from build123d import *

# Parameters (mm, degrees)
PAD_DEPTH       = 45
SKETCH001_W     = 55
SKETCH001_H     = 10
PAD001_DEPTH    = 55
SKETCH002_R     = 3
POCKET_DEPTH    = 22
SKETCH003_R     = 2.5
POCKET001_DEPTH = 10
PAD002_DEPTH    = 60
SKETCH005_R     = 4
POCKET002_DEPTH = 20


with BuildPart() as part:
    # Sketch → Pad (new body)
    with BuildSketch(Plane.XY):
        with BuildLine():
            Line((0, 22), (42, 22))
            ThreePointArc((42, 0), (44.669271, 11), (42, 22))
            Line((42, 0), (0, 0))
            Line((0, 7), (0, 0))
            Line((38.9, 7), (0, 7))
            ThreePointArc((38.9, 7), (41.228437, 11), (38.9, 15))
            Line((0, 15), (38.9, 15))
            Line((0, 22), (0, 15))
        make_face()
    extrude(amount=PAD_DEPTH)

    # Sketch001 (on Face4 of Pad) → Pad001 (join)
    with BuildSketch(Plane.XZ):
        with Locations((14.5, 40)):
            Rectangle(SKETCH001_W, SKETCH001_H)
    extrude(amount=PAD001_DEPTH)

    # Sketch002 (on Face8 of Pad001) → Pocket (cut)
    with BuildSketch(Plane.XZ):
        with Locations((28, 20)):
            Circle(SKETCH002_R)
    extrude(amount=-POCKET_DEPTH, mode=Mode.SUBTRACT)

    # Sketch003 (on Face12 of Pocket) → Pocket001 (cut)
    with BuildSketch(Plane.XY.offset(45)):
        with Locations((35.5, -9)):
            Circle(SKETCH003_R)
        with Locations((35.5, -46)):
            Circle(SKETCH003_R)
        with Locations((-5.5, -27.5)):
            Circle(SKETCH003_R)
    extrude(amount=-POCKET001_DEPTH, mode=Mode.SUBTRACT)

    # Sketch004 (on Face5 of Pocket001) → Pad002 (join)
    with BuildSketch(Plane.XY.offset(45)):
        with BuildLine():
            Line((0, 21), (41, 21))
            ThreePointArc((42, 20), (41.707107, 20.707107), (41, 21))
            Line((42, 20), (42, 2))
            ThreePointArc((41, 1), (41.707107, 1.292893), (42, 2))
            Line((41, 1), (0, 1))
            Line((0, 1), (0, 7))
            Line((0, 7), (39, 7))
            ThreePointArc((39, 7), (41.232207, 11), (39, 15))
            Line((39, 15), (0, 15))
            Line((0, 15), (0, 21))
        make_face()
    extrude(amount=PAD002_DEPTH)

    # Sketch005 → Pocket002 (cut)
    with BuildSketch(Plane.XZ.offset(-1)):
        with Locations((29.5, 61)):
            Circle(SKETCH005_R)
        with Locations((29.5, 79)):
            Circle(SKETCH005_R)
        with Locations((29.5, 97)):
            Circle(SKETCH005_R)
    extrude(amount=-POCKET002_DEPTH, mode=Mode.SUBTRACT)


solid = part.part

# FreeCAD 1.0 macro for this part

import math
import FreeCAD as App
import Part
import Sketcher
from FreeCAD import Vector

doc = App.newDocument("Part")
body = doc.addObject("PartDesign::Body", "Body")

# Sketch on XY plane
sketch1 = body.newObject("Sketcher::SketchObject", "Sketch")
sketch1.AttachmentSupport = (doc.getObject("XY_Plane"), [""])
sketch1.MapMode = "FlatFace"
sketch1.addGeometry([
    Part.LineSegment(Vector(42, 22, 0), Vector(0, 22, 0)),  # 0
    Part.LineSegment(Vector(0, 22, 0), Vector(0, 15, 0)),  # 1
    Part.LineSegment(Vector(0, 15, 0), Vector(38.9, 15, 0)),  # 2
    Part.ArcOfCircle(Part.Circle(Vector(36.628437, 11, 0), Vector(0, 0, 1), 4.6), math.radians(-60.408161), math.radians(60.408161)),  # 3
    Part.LineSegment(Vector(38.9, 7, 0), Vector(0, 7, 0)),  # 4
    Part.LineSegment(Vector(0, 7, 0), Vector(0, 0, 0)),  # 5
    Part.LineSegment(Vector(0, 0, 0), Vector(42, 0, 0)),  # 6
    Part.ArcOfCircle(Part.Circle(Vector(20.669271, 11, 0), Vector(0, 0, 1), 24), math.radians(-27.279613), math.radians(27.279613)),  # 7
], False)
sketch1.addConstraint([
    Sketcher.Constraint("Coincident", 0, 2, 1, 1),
    Sketcher.Constraint("Coincident", 1, 2, 2, 1),
    Sketcher.Constraint("Coincident", 2, 2, 3, 2),
    Sketcher.Constraint("Coincident", 3, 1, 4, 1),
    Sketcher.Constraint("Coincident", 4, 2, 5, 1),
    Sketcher.Constraint("Coincident", 5, 2, 6, 1),
    Sketcher.Constraint("Coincident", 6, 2, 7, 1),
    Sketcher.Constraint("Coincident", 7, 2, 0, 1),
    Sketcher.Constraint("Horizontal", 0),
    Sketcher.Constraint("Vertical", 1),
    Sketcher.Constraint("Horizontal", 2),
    Sketcher.Constraint("Horizontal", 4),
    Sketcher.Constraint("Vertical", 5),
    Sketcher.Constraint("Horizontal", 6),
    Sketcher.Constraint("Coincident", 5, 2, -1, 1),
    Sketcher.Constraint("PointOnObject", 0, 2, -2),
    Sketcher.Constraint("Horizontal", 3, 3, 7, 3),
    Sketcher.Constraint("Vertical", 2, 2, 3, 1),
    Sketcher.Constraint("Vertical", 6, 2, 7, 2),
    Sketcher.Constraint("Radius", 7, 24.0),
    Sketcher.Constraint("Radius", 3, 4.6),
    Sketcher.Constraint("DistanceX", 0, 2, 0, 1, 42.0),
    Sketcher.Constraint("DistanceY", 1, 2, 1, 1, 7.0),
    Sketcher.Constraint("DistanceX", 2, 1, 2, 2, 38.9),
    Sketcher.Constraint("DistanceY", -1, 1, 3, 3, 11.0),
])
pad1 = body.newObject("PartDesign::Pad", "Pad")
pad1.Profile = sketch1
pad1.Length = 45

# Sketch on XZ plane
sketch2 = body.newObject("Sketcher::SketchObject", "Sketch001")
sketch2.AttachmentSupport = (doc.getObject("XZ_Plane"), [""])
sketch2.MapMode = "FlatFace"
sketch2.addGeometry([
    Part.LineSegment(Vector(-13, 45, 0), Vector(-13, 35, 0)),
    Part.LineSegment(Vector(-13, 35, 0), Vector(42, 35, 0)),
    Part.LineSegment(Vector(42, 35, 0), Vector(42, 45, 0)),
    Part.LineSegment(Vector(42, 45, 0), Vector(-13, 45, 0)),
], False)
sketch2.addConstraint([
    Sketcher.Constraint("Coincident", 0, 2, 1, 1),
    Sketcher.Constraint("Coincident", 1, 2, 2, 1),
    Sketcher.Constraint("Coincident", 2, 2, 3, 1),
    Sketcher.Constraint("Coincident", 3, 2, 0, 1),
    Sketcher.Constraint("Vertical", 0),
    Sketcher.Constraint("Horizontal", 1),
    Sketcher.Constraint("Vertical", 2),
    Sketcher.Constraint("Horizontal", 3),
    Sketcher.Constraint("DistanceX", 1, 1, 1, 2, 55.0),
    Sketcher.Constraint("DistanceY", 0, 2, 0, 1, 10.0),
    Sketcher.Constraint("DistanceX", 0, 2, -1, 1, 13.0),
    Sketcher.Constraint("DistanceY", -1, 1, 0, 2, 35.0),
])
pad2 = body.newObject("PartDesign::Pad", "Pad001")
pad2.Profile = sketch2
pad2.Length = 55

# Sketch on XZ plane
sketch3 = body.newObject("Sketcher::SketchObject", "Sketch002")
sketch3.AttachmentSupport = (doc.getObject("XZ_Plane"), [""])
sketch3.MapMode = "FlatFace"
sketch3.addGeometry(Part.Circle(Vector(28, 20, 0), Vector(0, 0, 1), 3), False)
sketch3.addConstraint([
    Sketcher.Constraint("Diameter", 0, 6.0),
    Sketcher.Constraint("DistanceX", -1, 1, 0, 3, 28.0),
    Sketcher.Constraint("DistanceY", -1, 1, 0, 3, 20.0),
])
pocket1 = body.newObject("PartDesign::Pocket", "Pocket")
pocket1.Profile = sketch3
pocket1.Length = 22

# Sketch on XY plane
sketch4 = body.newObject("Sketcher::SketchObject", "Sketch003")
sketch4.AttachmentSupport = (doc.getObject("XY_Plane"), [""])
sketch4.MapMode = "FlatFace"
sketch4.AttachmentOffset = App.Placement(Vector(0, 0, 45), App.Rotation())
sketch4.addGeometry([
    Part.Circle(Vector(35.5, -9, 0), Vector(0, 0, 1), 2.5),
    Part.Circle(Vector(35.5, -46, 0), Vector(0, 0, 1), 2.5),
    Part.Circle(Vector(-5.5, -27.5, 0), Vector(0, 0, 1), 2.5),
], False)
sketch4.addConstraint([
    Sketcher.Constraint("Equal", 0, 1),
    Sketcher.Constraint("Equal", 1, 2),
    Sketcher.Constraint("Vertical", 0, 3, 1, 3),
    Sketcher.Constraint("Diameter", 0, 5.0),
    Sketcher.Constraint("DistanceY", 0, 3, -1, 1, 9.0),
    Sketcher.Constraint("DistanceY", 1, 3, -1, 1, 46.0),
    Sketcher.Constraint("DistanceX", 2, 3, 0, 3, 41.0),
    Sketcher.Constraint("DistanceX", -1, 1, 0, 3, 35.5),
    Sketcher.Constraint("DistanceY", 2, 3, -1, 1, 27.5),
])
pocket2 = body.newObject("PartDesign::Pocket", "Pocket001")
pocket2.Profile = sketch4
pocket2.Length = 10

# Sketch on XY plane
sketch5 = body.newObject("Sketcher::SketchObject", "Sketch004")
sketch5.AttachmentSupport = (doc.getObject("XY_Plane"), [""])
sketch5.MapMode = "FlatFace"
sketch5.AttachmentOffset = App.Placement(Vector(0, 0, 45), App.Rotation())
sketch5.addGeometry([
    Part.LineSegment(Vector(41, 21, 0), Vector(0, 21, 0)),  # 0
    Part.LineSegment(Vector(0, 21, 0), Vector(0, 15, 0)),  # 1
    Part.LineSegment(Vector(0, 15, 0), Vector(39, 15, 0)),  # 2
    Part.ArcOfCircle(Part.Circle(Vector(36.532206, 11, 0), Vector(0, 0, 1), 4.700001), math.radians(-58.327556), math.radians(58.327556)),  # 3
    Part.LineSegment(Vector(39, 7, 0), Vector(0, 7, 0)),  # 4
    Part.LineSegment(Vector(0, 7, 0), Vector(0, 1, 0)),  # 5
    Part.LineSegment(Vector(0, 1, 0), Vector(41, 1, 0)),  # 6
    Part.ArcOfCircle(Part.Circle(Vector(41.000001, 1.999999, 0), Vector(0, 0, 1), 0.999999), math.radians(-90.000043), math.radians(0.000043)),  # 7
    Part.LineSegment(Vector(42, 2, 0), Vector(42, 20, 0)),  # 8
    Part.ArcOfCircle(Part.Circle(Vector(41.000001, 20.000001, 0), Vector(0, 0, 1), 0.999999), math.radians(-0.000043), math.radians(90.000043)),  # 9
], False)
sketch5.addConstraint([
    Sketcher.Constraint("Coincident", 0, 2, 1, 1),
    Sketcher.Constraint("Coincident", 1, 2, 2, 1),
    Sketcher.Constraint("Coincident", 2, 2, 3, 2),
    Sketcher.Constraint("Coincident", 3, 1, 4, 1),
    Sketcher.Constraint("Coincident", 4, 2, 5, 1),
    Sketcher.Constraint("Coincident", 5, 2, 6, 1),
    Sketcher.Constraint("Tangent", 6, 2, 7, 1),
    Sketcher.Constraint("Tangent", 7, 2, 8, 1),
    Sketcher.Constraint("Tangent", 8, 2, 9, 1),
    Sketcher.Constraint("Tangent", 9, 2, 0, 1),
    Sketcher.Constraint("Horizontal", 0),
    Sketcher.Constraint("Vertical", 1),
    Sketcher.Constraint("Horizontal", 2),
    Sketcher.Constraint("Horizontal", 4),
    Sketcher.Constraint("Vertical", 5),
    Sketcher.Constraint("Horizontal", 6),
    Sketcher.Constraint("Vertical", 8),
    Sketcher.Constraint("Equal", 7, 9),
    Sketcher.Constraint("PointOnObject", 0, 2, -2),
    Sketcher.Constraint("PointOnObject", 4, 2, -2),
    Sketcher.Constraint("Vertical", 2, 2, 3, 1),
    Sketcher.Constraint("Equal", 1, 5),
    Sketcher.Constraint("Radius", 7, 0.999999),
    Sketcher.Constraint("Radius", 3, 4.700001),
    Sketcher.Constraint("DistanceX", 0, 2, 0, 1, 41.0),
    Sketcher.Constraint("DistanceX", 2, 1, 2, 2, 39.0),
    Sketcher.Constraint("DistanceY", 1, 2, 1, 1, 6.0),
    Sketcher.Constraint("DistanceY", 8, 1, 8, 2, 18.0),
    Sketcher.Constraint("DistanceY", -1, 1, 3, 3, 11.0),
])
pad3 = body.newObject("PartDesign::Pad", "Pad002")
pad3.Profile = sketch5
pad3.Length = 60

# Sketch on XZ plane
sketch6 = body.newObject("Sketcher::SketchObject", "Sketch005")
sketch6.AttachmentSupport = (doc.getObject("XZ_Plane"), [""])
sketch6.MapMode = "FlatFace"
sketch6.AttachmentOffset = App.Placement(Vector(0, 0, -1), App.Rotation())
sketch6.addGeometry([
    Part.Circle(Vector(29.5, 61, 0), Vector(0, 0, 1), 4),
    Part.Circle(Vector(29.5, 79, 0), Vector(0, 0, 1), 4),
    Part.Circle(Vector(29.5, 97, 0), Vector(0, 0, 1), 4),
], False)
sketch6.addConstraint([
    Sketcher.Constraint("Equal", 0, 1),
    Sketcher.Constraint("Equal", 1, 2),
    Sketcher.Constraint("Vertical", 0, 3, 1, 3),
    Sketcher.Constraint("Vertical", 1, 3, 2, 3),
    Sketcher.Constraint("Diameter", 0, 8.0),
    Sketcher.Constraint("DistanceY", -1, 1, 0, 3, 61.0),
    Sketcher.Constraint("DistanceY", -1, 1, 1, 3, 79.0),
    Sketcher.Constraint("DistanceY", -1, 1, 2, 3, 97.0),
    Sketcher.Constraint("DistanceX", -1, 1, 0, 3, 29.5),
])
pocket3 = body.newObject("PartDesign::Pocket", "Pocket002")
pocket3.Profile = sketch6
pocket3.Length = 20

doc.recompute()
